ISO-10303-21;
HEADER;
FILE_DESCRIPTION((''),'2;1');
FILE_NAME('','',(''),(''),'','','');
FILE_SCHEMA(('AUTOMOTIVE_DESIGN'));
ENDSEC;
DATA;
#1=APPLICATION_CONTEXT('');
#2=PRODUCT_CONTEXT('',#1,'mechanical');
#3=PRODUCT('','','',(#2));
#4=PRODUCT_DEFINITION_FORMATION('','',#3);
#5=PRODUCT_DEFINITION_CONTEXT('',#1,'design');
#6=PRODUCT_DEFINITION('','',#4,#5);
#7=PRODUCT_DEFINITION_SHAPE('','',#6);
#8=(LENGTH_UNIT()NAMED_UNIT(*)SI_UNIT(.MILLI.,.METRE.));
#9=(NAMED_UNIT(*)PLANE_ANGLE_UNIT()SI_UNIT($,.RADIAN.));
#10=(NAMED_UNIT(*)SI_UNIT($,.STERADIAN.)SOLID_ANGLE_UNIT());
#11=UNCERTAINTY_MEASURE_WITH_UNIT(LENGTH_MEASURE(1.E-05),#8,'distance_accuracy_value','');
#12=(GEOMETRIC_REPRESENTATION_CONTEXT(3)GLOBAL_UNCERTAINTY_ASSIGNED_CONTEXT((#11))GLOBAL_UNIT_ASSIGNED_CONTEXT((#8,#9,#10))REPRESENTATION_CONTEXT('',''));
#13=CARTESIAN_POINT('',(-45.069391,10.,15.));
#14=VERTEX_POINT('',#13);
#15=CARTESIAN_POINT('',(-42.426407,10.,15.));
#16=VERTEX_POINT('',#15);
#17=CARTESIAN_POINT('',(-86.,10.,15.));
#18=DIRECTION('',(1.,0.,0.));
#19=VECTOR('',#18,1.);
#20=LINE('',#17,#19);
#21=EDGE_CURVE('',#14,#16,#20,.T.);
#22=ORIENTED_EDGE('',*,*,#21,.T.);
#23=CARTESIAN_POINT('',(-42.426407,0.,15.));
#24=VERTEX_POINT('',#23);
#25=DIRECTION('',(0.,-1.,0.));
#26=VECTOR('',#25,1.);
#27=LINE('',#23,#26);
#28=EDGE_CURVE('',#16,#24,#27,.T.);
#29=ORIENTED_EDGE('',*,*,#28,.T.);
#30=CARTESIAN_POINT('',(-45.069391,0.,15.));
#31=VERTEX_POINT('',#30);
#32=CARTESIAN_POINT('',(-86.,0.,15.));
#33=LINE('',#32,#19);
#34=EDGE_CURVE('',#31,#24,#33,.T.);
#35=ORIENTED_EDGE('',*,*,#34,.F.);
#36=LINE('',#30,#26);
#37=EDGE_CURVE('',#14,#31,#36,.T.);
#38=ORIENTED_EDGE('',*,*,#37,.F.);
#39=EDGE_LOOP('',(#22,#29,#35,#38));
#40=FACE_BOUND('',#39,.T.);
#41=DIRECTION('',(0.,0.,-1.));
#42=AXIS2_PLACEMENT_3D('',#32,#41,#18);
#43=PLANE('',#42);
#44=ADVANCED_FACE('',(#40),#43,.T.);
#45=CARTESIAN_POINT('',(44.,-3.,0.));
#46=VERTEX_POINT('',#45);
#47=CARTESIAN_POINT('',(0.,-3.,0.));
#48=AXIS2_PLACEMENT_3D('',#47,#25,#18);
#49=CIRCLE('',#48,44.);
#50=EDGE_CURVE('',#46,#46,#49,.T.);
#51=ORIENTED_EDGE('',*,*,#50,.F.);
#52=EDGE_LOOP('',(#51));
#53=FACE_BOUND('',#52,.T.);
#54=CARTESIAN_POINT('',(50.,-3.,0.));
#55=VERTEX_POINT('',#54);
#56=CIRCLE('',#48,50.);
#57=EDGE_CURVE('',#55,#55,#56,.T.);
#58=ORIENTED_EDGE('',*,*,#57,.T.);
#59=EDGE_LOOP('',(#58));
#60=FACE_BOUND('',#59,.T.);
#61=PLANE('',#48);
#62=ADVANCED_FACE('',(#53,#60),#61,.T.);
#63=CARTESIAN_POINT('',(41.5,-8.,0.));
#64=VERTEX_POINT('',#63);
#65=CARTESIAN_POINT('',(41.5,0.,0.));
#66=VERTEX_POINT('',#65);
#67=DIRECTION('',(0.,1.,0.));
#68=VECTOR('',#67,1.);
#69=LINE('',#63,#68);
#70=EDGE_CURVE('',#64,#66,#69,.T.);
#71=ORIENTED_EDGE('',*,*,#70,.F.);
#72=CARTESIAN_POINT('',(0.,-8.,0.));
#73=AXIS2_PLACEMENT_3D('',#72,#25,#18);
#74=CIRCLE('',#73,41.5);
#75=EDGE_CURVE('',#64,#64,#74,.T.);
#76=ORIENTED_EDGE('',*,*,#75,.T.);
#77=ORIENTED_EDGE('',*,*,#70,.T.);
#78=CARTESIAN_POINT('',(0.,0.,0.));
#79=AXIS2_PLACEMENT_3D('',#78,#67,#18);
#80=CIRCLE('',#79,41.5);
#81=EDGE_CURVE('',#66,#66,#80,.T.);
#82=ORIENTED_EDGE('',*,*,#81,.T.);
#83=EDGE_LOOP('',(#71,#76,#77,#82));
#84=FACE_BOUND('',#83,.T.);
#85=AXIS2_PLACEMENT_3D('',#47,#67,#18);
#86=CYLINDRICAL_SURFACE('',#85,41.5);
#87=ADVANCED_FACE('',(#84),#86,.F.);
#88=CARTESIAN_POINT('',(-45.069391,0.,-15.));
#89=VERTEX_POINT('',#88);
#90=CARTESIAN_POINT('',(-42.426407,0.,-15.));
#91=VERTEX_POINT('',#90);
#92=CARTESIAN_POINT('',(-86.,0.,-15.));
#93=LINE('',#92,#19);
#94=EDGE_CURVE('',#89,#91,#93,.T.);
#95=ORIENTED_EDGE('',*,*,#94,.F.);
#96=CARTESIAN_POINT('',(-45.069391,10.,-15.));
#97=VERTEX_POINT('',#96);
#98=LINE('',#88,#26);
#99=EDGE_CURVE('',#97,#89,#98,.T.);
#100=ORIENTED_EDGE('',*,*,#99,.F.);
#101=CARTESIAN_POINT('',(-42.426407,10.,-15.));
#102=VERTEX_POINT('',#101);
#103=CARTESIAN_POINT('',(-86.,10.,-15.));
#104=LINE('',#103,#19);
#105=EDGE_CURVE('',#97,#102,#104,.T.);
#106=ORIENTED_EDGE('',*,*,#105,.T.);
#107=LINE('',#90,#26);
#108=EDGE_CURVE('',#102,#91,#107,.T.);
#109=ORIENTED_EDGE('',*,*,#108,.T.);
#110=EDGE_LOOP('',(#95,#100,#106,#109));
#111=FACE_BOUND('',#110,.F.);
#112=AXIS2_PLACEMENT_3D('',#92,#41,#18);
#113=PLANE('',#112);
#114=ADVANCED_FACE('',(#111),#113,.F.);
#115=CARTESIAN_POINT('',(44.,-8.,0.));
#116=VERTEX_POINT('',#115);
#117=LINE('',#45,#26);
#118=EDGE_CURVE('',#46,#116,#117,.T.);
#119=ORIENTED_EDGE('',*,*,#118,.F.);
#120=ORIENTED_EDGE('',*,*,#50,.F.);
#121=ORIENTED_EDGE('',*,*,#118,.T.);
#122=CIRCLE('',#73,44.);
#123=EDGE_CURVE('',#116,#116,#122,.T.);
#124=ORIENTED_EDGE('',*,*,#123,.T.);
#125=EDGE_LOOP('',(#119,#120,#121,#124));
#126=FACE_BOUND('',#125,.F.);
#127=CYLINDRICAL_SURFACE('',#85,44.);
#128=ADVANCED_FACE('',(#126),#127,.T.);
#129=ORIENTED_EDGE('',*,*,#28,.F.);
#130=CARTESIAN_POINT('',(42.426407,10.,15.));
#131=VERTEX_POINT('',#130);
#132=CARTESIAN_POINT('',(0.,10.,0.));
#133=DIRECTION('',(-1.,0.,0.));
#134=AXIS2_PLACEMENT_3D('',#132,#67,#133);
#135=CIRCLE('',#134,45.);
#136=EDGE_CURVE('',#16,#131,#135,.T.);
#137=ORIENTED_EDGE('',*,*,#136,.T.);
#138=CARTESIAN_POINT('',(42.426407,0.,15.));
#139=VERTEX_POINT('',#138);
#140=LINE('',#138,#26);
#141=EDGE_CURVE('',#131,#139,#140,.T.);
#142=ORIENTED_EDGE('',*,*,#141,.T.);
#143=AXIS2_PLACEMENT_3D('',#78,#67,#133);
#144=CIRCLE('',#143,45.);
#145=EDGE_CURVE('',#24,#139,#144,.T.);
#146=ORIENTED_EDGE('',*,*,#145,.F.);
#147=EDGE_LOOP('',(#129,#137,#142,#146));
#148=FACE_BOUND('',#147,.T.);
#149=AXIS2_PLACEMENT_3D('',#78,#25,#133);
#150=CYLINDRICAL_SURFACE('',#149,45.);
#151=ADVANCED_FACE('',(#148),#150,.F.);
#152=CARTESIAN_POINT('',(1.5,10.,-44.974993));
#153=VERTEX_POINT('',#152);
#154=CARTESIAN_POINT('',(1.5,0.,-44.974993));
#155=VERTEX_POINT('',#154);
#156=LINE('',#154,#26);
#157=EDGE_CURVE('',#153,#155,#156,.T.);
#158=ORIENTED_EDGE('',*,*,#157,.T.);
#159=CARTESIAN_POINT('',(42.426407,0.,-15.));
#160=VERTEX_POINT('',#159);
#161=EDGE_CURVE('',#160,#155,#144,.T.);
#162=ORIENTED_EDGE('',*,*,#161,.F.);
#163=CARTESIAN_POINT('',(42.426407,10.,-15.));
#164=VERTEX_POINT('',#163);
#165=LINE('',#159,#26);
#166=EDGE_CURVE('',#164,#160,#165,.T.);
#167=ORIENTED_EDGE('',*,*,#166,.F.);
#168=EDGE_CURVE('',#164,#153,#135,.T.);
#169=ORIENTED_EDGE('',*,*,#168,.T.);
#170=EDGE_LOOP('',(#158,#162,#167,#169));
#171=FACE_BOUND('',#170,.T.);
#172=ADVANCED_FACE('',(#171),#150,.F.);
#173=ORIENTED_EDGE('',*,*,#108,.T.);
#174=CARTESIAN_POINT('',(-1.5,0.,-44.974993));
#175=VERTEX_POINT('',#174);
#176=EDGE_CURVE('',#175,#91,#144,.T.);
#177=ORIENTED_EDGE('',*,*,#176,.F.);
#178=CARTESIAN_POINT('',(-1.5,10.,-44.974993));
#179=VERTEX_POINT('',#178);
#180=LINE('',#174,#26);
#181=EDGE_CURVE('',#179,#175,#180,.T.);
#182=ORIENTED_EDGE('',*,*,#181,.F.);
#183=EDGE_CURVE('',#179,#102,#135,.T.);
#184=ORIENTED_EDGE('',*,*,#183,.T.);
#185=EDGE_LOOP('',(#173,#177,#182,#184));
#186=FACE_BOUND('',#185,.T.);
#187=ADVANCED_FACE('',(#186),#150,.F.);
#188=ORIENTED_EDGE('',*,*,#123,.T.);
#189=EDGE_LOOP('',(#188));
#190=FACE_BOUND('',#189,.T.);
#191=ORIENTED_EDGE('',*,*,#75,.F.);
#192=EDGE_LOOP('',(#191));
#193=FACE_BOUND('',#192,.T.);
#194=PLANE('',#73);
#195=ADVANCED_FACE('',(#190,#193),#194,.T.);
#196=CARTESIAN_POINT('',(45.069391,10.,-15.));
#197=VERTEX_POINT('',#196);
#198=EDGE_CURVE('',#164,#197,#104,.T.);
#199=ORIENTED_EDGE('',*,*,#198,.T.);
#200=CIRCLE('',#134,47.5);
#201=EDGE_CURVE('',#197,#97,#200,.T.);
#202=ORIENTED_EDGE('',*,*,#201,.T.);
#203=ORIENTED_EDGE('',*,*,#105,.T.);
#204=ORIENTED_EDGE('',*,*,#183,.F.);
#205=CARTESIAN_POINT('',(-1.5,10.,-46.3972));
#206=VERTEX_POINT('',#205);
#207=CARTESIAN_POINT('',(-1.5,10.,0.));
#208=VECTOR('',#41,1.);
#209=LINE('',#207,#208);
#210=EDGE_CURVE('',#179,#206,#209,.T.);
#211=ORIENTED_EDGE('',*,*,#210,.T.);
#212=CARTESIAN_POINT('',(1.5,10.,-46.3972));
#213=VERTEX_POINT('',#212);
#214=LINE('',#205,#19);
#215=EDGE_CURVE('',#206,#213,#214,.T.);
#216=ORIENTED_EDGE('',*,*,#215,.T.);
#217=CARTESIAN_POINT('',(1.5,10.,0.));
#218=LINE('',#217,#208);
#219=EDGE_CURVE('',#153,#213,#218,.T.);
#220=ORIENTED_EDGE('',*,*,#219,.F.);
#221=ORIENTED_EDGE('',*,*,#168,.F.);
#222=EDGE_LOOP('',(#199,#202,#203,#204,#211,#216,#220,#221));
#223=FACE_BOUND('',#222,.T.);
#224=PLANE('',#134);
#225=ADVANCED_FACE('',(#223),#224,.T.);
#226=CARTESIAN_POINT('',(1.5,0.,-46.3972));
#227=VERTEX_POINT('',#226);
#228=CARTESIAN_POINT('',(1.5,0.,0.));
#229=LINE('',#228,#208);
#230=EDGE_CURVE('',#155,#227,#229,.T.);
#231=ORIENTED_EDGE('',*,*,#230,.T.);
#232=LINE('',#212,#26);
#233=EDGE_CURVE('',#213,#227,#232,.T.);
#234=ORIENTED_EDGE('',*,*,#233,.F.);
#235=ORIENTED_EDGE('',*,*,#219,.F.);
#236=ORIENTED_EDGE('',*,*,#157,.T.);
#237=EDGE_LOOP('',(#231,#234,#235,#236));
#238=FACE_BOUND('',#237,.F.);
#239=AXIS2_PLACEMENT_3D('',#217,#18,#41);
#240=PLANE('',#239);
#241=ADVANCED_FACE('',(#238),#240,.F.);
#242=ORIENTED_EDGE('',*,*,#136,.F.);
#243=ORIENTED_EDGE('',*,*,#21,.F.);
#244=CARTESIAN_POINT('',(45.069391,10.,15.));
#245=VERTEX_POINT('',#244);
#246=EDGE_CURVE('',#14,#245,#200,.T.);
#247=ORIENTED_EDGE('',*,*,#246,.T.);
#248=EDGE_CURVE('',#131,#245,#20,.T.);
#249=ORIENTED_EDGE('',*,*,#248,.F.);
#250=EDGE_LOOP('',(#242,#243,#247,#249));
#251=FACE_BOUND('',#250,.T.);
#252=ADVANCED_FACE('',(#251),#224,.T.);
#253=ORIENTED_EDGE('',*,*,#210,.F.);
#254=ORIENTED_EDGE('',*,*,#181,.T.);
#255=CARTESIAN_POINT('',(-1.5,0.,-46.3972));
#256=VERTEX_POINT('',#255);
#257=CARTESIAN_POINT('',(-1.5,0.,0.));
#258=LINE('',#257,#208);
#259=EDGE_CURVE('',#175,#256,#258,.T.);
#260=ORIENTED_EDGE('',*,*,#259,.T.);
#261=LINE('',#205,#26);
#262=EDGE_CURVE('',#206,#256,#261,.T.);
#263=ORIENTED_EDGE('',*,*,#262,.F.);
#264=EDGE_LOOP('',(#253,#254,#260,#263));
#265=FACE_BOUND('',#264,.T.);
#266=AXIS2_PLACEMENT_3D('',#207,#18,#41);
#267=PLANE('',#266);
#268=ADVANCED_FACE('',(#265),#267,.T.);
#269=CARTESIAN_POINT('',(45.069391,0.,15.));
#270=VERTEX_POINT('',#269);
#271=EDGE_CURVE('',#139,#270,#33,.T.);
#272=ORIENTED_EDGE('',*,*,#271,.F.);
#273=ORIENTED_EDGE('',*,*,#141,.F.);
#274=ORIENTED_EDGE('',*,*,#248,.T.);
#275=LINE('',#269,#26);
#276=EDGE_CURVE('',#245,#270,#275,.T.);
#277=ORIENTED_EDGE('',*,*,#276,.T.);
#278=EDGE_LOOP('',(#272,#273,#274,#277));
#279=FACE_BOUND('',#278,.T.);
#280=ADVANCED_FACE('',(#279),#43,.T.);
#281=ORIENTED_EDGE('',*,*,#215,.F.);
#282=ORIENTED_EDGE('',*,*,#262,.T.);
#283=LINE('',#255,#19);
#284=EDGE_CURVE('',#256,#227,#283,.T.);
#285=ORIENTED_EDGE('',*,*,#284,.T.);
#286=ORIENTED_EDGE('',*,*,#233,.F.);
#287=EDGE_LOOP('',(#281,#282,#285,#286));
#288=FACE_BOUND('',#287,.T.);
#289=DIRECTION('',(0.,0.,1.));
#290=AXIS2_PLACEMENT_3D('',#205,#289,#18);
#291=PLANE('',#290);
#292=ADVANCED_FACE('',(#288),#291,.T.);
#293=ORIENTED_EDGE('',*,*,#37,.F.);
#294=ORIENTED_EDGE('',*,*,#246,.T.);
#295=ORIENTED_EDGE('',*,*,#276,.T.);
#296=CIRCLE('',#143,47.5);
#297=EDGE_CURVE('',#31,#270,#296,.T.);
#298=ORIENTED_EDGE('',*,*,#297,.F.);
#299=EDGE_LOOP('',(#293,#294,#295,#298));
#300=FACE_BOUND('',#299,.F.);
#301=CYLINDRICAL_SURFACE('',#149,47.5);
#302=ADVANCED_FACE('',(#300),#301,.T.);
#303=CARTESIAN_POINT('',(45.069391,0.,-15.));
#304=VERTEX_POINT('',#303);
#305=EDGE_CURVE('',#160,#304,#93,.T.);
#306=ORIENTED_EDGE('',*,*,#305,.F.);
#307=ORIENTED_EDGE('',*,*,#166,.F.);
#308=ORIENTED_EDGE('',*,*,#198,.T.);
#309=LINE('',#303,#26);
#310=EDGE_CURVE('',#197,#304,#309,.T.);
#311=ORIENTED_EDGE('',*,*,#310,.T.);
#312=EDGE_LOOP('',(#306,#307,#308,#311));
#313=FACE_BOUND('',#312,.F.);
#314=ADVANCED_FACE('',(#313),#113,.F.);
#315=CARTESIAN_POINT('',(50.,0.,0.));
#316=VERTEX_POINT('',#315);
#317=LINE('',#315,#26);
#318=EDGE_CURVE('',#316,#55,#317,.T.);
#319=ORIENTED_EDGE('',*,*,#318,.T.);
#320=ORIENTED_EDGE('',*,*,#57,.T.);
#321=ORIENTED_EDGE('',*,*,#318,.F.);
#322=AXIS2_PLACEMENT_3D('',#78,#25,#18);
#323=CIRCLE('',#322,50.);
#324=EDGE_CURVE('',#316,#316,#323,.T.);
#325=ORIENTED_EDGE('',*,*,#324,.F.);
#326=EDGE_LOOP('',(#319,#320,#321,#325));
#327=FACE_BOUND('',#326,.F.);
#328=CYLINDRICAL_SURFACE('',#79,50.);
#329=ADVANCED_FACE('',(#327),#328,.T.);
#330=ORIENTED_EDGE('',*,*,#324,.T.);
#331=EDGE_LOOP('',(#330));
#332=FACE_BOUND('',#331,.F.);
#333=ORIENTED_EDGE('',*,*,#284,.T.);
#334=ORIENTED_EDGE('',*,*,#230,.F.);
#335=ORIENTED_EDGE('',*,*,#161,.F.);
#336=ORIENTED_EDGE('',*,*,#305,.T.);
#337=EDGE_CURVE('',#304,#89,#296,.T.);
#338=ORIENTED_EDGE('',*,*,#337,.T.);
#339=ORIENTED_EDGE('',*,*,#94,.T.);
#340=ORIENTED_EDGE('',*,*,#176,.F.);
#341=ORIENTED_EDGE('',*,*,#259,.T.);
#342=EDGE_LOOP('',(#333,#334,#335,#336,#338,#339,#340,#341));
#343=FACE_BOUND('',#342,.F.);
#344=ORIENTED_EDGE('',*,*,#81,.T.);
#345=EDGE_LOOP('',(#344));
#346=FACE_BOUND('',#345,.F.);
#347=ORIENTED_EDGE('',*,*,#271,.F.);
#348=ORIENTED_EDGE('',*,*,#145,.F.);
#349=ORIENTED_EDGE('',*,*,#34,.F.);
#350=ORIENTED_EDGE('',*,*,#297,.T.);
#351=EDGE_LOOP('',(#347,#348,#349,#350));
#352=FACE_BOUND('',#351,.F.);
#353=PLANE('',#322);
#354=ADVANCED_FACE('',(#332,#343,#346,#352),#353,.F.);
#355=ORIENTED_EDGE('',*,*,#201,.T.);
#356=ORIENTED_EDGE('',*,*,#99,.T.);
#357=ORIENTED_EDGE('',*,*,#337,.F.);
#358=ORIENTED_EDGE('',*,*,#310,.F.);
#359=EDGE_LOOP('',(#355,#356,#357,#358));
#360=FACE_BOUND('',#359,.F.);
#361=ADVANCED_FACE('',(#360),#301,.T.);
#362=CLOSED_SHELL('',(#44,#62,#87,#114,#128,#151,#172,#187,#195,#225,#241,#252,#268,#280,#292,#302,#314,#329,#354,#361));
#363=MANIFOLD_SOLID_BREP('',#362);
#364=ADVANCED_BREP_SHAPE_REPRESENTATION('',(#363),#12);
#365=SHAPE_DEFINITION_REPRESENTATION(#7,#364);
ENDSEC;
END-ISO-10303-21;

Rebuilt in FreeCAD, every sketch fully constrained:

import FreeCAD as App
import Part
import Sketcher
Q = App.Units.Quantity

doc = App.newDocument("Part")
body = doc.addObject("PartDesign::Body", "Body")

sketch1 = doc.addObject("Sketcher::SketchObject", "Sketch")
body.addObject(sketch1)
sketch1.AttachmentSupport = (doc.XZ_Plane, [""])
sketch1.MapMode = "FlatFace"
sketch1.addGeometry([
    Part.Circle(App.Vector(0, 0, 0), App.Vector(0, 0, 1), 47.5),
    Part.Circle(App.Vector(0, 0, 0), App.Vector(0, 0, 1), 45),
], False)
sketch1.addConstraint([
    Sketcher.Constraint("Coincident", 0, 3, -1, 1),
    Sketcher.Constraint("Coincident", 1, 3, -1, 1),
    Sketcher.Constraint("Diameter", 0, Q("95 mm")),
    Sketcher.Constraint("Diameter", 1, Q("90 mm")),
])
pad1 = doc.addObject("PartDesign::Pad", "Pad")
body.addObject(pad1)
pad1.Profile = sketch1
pad1.Length = 10
pad1.Reversed = True

sketch2 = doc.addObject("Sketcher::SketchObject", "Sketch001")
body.addObject(sketch2)
sketch2.AttachmentSupport = (doc.XZ_Plane, [""])
sketch2.MapMode = "FlatFace"
sketch2.addGeometry([
    Part.Circle(App.Vector(0, 0, 0), App.Vector(0, 0, 1), 50),
    Part.Circle(App.Vector(0, 0, 0), App.Vector(0, 0, 1), 41.5),
], False)
sketch2.addConstraint([
    Sketcher.Constraint("Coincident", 0, 3, -1, 1),
    Sketcher.Constraint("Coincident", 1, 3, -1, 1),
    Sketcher.Constraint("Diameter", 0, Q("100 mm")),
    Sketcher.Constraint("Diameter", 1, Q("83 mm")),
])
pad2 = doc.addObject("PartDesign::Pad", "Pad001")
body.addObject(pad2)
pad2.Profile = sketch2
pad2.Length = 3

sketch3 = doc.addObject("Sketcher::SketchObject", "Sketch002")
body.addObject(sketch3)
sketch3.AttachmentSupport = (doc.XZ_Plane, [""])
sketch3.MapMode = "FlatFace"
sketch3.AttachmentOffset = App.Placement(App.Vector(0, 0, 3), App.Rotation())
sketch3.addGeometry([
    Part.Circle(App.Vector(0, 0, 0), App.Vector(0, 0, 1), 44),
    Part.Circle(App.Vector(0, 0, 0), App.Vector(0, 0, 1), 41.5),
], False)
sketch3.addConstraint([
    Sketcher.Constraint("Coincident", 0, 3, -1, 1),
    Sketcher.Constraint("Coincident", 1, 3, -1, 1),
    Sketcher.Constraint("Diameter", 0, Q("88 mm")),
    Sketcher.Constraint("Diameter", 1, Q("83 mm")),
])
pad3 = doc.addObject("PartDesign::Pad", "Pad002")
body.addObject(pad3)
pad3.Profile = sketch3
pad3.Length = 5

sketch4 = doc.addObject("Sketcher::SketchObject", "Sketch003")
body.addObject(sketch4)
sketch4.AttachmentSupport = (doc.XZ_Plane, [""])
sketch4.MapMode = "FlatFace"
sketch4.addGeometry([
    Part.LineSegment(App.Vector(65, -15, 0), App.Vector(-86, -15, 0)),
    Part.LineSegment(App.Vector(-86, -15, 0), App.Vector(-86, 15, 0)),
    Part.LineSegment(App.Vector(-86, 15, 0), App.Vector(65, 15, 0)),
    Part.LineSegment(App.Vector(65, 15, 0), App.Vector(65, -15, 0)),
], False)
sketch4.addConstraint([
    Sketcher.Constraint("Coincident", 0, 2, 1, 1),
    Sketcher.Constraint("Coincident", 1, 2, 2, 1),
    Sketcher.Constraint("Coincident", 2, 2, 3, 1),
    Sketcher.Constraint("Coincident", 3, 2, 0, 1),
    Sketcher.Constraint("Horizontal", 0),
    Sketcher.Constraint("Vertical", 1),
    Sketcher.Constraint("Horizontal", 2),
    Sketcher.Constraint("Vertical", 3),
    Sketcher.Constraint("DistanceY", 0, 2, -1, 1, Q("15 mm")),
    Sketcher.Constraint("DistanceY", -1, 1, 1, 2, Q("15 mm")),
    Sketcher.Constraint("DistanceX", 0, 2, 0, 1, Q("151 mm")),
    Sketcher.Constraint("DistanceX", 0, 2, -1, 1, Q("86 mm")),
])
pocket1 = doc.addObject("PartDesign::Pocket", "Pocket")
body.addObject(pocket1)
pocket1.Profile = sketch4
pocket1.Length = 10

sketch5 = doc.addObject("Sketcher::SketchObject", "Sketch004")
body.addObject(sketch5)
sketch5.AttachmentSupport = (doc.XZ_Plane, [""])
sketch5.MapMode = "FlatFace"
sketch5.AttachmentOffset = App.Placement(App.Vector(0, 0, -10), App.Rotation())
sketch5.addGeometry([
    Part.LineSegment(App.Vector(-1.5, -46.3972, 0), App.Vector(-1.5, 0, 0)),
    Part.LineSegment(App.Vector(-1.5, 0, 0), App.Vector(1.5, 0, 0)),
    Part.LineSegment(App.Vector(1.5, 0, 0), App.Vector(1.5, -46.3972, 0)),
    Part.LineSegment(App.Vector(1.5, -46.3972, 0), App.Vector(-1.5, -46.3972, 0)),
], False)
sketch5.addConstraint([
    Sketcher.Constraint("Coincident", 0, 2, 1, 1),
    Sketcher.Constraint("Coincident", 1, 2, 2, 1),
    Sketcher.Constraint("Coincident", 2, 2, 3, 1),
    Sketcher.Constraint("Coincident", 3, 2, 0, 1),
    Sketcher.Constraint("Vertical", 0),
    Sketcher.Constraint("Horizontal", 1),
    Sketcher.Constraint("Vertical", 2),
    Sketcher.Constraint("Horizontal", 3),
    Sketcher.Constraint("Symmetric", 0, 2, 1, 2, -1, 1),
    Sketcher.Constraint("DistanceX", 0, 2, -1, 1, Q("1.5 mm")),
    Sketcher.Constraint("DistanceY", 0, 1, 0, 2, Q("46.3972 mm")),
])
pocket2 = doc.addObject("PartDesign::Pocket", "Pocket001")
body.addObject(pocket2)
pocket2.Profile = sketch5
pocket2.Length = 10
pocket2.Reversed = True

doc.recompute()
